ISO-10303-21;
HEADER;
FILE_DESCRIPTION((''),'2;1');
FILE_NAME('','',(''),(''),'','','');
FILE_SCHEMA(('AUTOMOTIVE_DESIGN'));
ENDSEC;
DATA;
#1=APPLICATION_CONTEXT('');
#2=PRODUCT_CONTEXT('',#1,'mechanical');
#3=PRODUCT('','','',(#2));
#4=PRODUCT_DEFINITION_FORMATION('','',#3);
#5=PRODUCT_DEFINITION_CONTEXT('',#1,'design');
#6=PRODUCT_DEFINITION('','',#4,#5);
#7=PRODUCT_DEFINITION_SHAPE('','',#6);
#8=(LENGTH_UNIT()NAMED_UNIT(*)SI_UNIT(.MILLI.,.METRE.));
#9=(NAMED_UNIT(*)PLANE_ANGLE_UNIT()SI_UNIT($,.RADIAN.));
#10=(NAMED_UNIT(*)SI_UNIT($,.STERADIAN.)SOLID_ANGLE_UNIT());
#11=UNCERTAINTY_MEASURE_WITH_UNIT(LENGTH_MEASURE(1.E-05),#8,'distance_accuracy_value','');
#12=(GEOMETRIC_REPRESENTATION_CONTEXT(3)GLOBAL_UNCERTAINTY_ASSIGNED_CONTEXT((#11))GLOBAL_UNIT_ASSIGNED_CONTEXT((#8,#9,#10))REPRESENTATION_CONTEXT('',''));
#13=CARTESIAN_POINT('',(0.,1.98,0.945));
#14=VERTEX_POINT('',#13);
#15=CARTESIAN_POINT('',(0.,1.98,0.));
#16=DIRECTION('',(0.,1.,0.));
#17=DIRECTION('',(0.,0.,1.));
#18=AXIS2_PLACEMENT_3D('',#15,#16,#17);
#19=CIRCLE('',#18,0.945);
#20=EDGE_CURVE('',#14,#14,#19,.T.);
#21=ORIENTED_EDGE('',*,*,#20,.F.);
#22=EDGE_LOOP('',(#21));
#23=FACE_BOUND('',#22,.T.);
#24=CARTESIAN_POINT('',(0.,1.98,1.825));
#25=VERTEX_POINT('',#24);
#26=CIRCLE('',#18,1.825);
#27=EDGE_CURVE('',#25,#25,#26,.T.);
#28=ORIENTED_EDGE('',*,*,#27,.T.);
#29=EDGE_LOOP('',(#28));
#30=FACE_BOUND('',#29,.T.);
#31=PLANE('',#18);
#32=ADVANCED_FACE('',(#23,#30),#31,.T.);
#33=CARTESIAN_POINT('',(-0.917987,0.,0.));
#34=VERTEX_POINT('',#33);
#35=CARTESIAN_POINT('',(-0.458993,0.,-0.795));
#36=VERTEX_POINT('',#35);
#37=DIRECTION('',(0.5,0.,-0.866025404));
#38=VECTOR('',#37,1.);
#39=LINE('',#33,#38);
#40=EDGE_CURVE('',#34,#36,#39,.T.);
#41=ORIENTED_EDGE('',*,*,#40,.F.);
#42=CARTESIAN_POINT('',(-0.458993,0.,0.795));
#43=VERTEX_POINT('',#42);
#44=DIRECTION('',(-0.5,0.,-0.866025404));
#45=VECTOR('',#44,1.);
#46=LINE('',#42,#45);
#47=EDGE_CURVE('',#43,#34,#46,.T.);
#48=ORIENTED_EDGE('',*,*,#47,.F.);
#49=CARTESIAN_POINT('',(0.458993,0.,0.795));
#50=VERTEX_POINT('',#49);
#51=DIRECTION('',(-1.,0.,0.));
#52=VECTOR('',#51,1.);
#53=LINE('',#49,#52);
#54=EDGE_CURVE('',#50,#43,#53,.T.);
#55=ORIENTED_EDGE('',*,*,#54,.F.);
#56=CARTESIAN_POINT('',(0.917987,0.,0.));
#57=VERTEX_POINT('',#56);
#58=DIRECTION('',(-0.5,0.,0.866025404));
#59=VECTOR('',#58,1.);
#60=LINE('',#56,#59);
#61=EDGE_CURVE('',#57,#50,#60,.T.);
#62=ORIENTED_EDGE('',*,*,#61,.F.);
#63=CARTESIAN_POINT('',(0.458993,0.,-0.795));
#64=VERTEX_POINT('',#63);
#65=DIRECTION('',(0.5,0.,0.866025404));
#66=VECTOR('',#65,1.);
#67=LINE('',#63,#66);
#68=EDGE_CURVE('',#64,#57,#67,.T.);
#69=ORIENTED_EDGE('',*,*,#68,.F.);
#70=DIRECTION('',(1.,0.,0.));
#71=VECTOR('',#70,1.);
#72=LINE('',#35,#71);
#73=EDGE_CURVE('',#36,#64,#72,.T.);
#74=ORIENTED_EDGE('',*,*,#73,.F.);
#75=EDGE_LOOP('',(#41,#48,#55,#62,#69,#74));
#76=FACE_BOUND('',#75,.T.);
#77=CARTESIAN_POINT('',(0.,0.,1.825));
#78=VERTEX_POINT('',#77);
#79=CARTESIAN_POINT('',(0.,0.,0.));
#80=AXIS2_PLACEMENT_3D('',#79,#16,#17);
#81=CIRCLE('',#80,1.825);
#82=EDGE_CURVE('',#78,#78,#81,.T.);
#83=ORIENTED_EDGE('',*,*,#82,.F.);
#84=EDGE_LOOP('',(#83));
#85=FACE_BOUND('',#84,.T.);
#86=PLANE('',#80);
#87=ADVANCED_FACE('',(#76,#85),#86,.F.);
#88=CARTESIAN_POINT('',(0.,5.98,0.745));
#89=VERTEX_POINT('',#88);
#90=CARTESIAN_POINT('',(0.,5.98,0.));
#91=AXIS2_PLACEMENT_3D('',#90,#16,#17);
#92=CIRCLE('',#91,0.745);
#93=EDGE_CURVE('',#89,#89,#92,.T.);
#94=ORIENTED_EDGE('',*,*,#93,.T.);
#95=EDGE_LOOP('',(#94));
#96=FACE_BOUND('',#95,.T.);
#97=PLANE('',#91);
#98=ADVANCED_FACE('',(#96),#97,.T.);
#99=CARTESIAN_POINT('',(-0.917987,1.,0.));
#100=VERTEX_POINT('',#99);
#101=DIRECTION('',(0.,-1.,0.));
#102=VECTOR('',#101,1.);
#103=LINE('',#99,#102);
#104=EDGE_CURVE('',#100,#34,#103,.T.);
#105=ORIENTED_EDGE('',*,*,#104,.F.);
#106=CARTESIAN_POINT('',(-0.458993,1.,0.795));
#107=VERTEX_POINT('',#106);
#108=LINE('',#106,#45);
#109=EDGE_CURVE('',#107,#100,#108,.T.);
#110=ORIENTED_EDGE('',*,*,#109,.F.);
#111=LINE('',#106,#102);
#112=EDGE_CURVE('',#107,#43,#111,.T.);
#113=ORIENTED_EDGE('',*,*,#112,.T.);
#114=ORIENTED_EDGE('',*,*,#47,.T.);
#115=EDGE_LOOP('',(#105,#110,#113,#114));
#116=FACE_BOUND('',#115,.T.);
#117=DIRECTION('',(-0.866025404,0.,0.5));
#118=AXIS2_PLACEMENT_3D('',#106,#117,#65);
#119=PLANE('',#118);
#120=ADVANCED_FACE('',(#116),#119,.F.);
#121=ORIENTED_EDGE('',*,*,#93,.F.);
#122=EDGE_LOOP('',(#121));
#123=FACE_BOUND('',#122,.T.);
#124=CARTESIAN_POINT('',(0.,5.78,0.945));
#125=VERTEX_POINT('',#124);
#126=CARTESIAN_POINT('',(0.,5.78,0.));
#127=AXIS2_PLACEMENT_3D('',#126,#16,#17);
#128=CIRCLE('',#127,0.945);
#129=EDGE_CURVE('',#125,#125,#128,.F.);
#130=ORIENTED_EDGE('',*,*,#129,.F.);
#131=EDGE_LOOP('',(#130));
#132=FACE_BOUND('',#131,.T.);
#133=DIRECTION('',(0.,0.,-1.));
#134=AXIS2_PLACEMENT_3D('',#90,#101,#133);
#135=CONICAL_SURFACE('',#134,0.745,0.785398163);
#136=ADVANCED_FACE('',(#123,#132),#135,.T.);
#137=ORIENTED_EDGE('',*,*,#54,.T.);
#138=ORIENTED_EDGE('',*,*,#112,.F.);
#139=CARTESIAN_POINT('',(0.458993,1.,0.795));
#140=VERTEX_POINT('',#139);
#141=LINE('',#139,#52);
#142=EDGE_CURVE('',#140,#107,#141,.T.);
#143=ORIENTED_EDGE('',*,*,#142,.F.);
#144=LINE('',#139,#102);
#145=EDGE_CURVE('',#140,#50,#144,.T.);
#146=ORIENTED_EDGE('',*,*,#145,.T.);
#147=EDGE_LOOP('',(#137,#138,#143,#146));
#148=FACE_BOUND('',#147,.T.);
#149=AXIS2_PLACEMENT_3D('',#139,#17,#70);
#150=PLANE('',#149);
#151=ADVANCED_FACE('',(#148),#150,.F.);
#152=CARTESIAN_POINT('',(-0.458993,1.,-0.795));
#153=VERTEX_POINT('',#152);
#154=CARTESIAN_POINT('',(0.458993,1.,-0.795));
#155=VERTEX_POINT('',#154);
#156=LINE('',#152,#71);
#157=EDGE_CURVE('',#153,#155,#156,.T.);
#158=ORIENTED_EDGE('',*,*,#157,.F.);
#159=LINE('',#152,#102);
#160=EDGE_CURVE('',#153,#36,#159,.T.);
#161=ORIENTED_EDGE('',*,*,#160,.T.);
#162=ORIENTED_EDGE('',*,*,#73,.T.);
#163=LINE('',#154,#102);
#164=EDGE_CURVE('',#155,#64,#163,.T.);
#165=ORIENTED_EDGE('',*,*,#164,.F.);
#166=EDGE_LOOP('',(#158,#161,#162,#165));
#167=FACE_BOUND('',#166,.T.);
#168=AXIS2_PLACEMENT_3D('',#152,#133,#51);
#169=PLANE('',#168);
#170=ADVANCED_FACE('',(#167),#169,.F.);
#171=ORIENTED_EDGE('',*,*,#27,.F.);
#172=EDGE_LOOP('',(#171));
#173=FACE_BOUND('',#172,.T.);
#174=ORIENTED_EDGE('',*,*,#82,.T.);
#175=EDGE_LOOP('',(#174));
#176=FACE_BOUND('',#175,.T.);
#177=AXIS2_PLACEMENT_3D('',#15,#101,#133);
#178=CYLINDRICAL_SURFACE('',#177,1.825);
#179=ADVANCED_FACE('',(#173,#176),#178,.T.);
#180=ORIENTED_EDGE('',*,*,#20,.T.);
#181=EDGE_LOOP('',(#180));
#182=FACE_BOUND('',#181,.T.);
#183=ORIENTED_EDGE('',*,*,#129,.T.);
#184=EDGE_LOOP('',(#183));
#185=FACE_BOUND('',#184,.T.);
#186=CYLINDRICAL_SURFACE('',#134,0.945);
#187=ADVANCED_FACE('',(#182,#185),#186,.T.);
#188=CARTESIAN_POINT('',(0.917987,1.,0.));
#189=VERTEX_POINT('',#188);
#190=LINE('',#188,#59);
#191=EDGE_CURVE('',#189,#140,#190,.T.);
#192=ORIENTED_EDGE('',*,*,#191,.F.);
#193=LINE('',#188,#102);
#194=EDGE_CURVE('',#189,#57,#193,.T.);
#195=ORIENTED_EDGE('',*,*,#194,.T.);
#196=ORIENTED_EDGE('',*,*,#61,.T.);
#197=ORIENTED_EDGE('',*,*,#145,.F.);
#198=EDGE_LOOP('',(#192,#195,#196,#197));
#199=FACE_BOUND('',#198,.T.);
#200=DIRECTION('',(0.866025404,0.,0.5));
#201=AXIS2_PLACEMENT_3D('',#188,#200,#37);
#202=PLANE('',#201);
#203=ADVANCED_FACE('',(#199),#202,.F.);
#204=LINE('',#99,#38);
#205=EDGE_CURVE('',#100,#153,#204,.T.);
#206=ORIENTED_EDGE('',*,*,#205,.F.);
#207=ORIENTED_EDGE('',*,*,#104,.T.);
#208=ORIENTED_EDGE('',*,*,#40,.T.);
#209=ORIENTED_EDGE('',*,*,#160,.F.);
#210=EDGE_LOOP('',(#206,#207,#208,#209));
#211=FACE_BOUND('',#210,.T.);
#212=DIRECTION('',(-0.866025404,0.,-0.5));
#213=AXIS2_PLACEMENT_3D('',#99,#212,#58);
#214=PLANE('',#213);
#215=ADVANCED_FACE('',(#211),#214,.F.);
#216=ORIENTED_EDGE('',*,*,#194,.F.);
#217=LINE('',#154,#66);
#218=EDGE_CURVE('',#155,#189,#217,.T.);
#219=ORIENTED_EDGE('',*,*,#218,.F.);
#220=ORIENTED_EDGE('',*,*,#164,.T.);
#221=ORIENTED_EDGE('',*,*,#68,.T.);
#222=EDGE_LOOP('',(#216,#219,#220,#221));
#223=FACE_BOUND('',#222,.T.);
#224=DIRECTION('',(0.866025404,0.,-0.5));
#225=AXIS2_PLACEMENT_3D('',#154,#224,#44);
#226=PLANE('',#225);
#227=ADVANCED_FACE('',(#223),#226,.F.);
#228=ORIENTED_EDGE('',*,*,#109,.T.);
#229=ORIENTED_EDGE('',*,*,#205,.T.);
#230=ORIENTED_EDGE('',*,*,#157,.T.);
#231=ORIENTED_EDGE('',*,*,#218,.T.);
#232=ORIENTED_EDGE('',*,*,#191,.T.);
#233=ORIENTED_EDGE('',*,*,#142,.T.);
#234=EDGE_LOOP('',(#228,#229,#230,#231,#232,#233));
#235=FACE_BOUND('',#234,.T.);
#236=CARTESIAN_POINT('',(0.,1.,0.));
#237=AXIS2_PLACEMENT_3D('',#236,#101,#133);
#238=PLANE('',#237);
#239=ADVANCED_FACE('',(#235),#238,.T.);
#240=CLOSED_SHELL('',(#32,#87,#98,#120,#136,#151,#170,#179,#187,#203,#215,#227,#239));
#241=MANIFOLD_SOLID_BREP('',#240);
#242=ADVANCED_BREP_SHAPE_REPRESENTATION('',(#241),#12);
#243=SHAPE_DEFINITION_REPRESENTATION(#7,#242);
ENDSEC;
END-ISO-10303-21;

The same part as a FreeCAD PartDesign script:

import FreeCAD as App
import Part
import Sketcher
Q = App.Units.Quantity


def edges_at(feature, points):
    """Names of the edges that pass closest to the given points."""
    edges = feature.Shape.Edges
    near = lambda p: min(range(len(edges)), key=lambda i: edges[i].distToShape(Part.Vertex(*p))[0])
    return sorted({f"Edge{near(p) + 1}" for p in points})

doc = App.newDocument("Part")
body = doc.addObject("PartDesign::Body", "Body")

sketch1 = doc.addObject("Sketcher::SketchObject", "Sketch")
body.addObject(sketch1)
sketch1.AttachmentSupport = (doc.XZ_Plane, [""])
sketch1.MapMode = "FlatFace"
sketch1.addGeometry(Part.Circle(App.Vector(0, 0, 0), App.Vector(0, 0, 1), 1.8), False)
sketch1.addConstraint(Sketcher.Constraint("Coincident", 0, 3, -1, 1))
sketch1.addConstraint(Sketcher.Constraint("Diameter", 0, 3.65))
pad1 = doc.addObject("PartDesign::Pad", "Pad")
body.addObject(pad1)
pad1.Profile = sketch1
pad1.Length = 1.98
pad1.Reversed = True

sketch2 = doc.addObject("Sketcher::SketchObject", "Sketch001")
body.addObject(sketch2)
sketch2.AttachmentSupport = (doc.XZ_Plane, [""])
sketch2.MapMode = "FlatFace"
sketch2.AttachmentOffset = App.Placement(App.Vector(0, 0, -1.98), App.Rotation())
sketch2.addGeometry(Part.Circle(App.Vector(0, 0, 0), App.Vector(0, 0, 1), 0.9), False)
sketch2.addConstraint(Sketcher.Constraint("Coincident", 0, 3, -1, 1))
sketch2.addConstraint(Sketcher.Constraint("Diameter", 0, 1.89))
pad2 = doc.addObject("PartDesign::Pad", "Pad001")
body.addObject(pad2)
pad2.Profile = sketch2
pad2.Length = 4
pad2.Reversed = True

sketch3 = doc.addObject("Sketcher::SketchObject", "Sketch002")
body.addObject(sketch3)
sketch3.AttachmentSupport = (doc.XZ_Plane, [""])
sketch3.MapMode = "FlatFace"
sketch3.addGeometry(Part.LineSegment(App.Vector(0.5, -0.8, 0), App.Vector(0.9, 0, 0)), False)
sketch3.addGeometry(Part.LineSegment(App.Vector(0.9, 0, 0), App.Vector(0.5, 0.8, 0)), False)
sketch3.addGeometry(Part.LineSegment(App.Vector(0.5, 0.8, 0), App.Vector(-0.5, 0.8, 0)), False)
sketch3.addGeometry(Part.LineSegment(App.Vector(-0.5, 0.8, 0), App.Vector(-0.9, 0, 0)), False)
sketch3.addGeometry(Part.LineSegment(App.Vector(-0.9, 0, 0), App.Vector(-0.5, -0.8, 0)), False)
sketch3.addGeometry(Part.LineSegment(App.Vector(-0.5, -0.8, 0), App.Vector(0.5, -0.8, 0)), False)
sketch3.addConstraint(Sketcher.Constraint("Coincident", 0, 2, 1, 1))
sketch3.addConstraint(Sketcher.Constraint("Coincident", 1, 2, 2, 1))
sketch3.addConstraint(Sketcher.Constraint("Coincident", 2, 2, 3, 1))
sketch3.addConstraint(Sketcher.Constraint("Coincident", 3, 2, 4, 1))
sketch3.addConstraint(Sketcher.Constraint("Coincident", 4, 2, 5, 1))
sketch3.addConstraint(Sketcher.Constraint("Coincident", 5, 2, 0, 1))
sketch3.addConstraint(Sketcher.Constraint("Horizontal", 2))
sketch3.addConstraint(Sketcher.Constraint("Horizontal", 5))
sketch3.addConstraint(Sketcher.Constraint("Symmetric", 0, 2, 3, 2, -1, 1))
sketch3.addConstraint(Sketcher.Constraint("Symmetric", 1, 2, 4, 2, -1, 1))
sketch3.addConstraint(Sketcher.Constraint("PointOnObject", 0, 2, -1))
sketch3.addConstraint(Sketcher.Constraint("Parallel", 0, 3))
sketch3.addConstraint(Sketcher.Constraint("Vertical", 2, 2, 4, 2))
sketch3.addConstraint(Sketcher.Constraint("Angle", 0, Q("60 deg")))
sketch3.addConstraint(Sketcher.Constraint("DistanceY", 4, 2, 2, 2, 1.59))
sketch3.addConstraint(Sketcher.Constraint("DistanceX", 2, 2, 2, 1, 0.917987))
pocket1 = doc.addObject("PartDesign::Pocket", "Pocket")
body.addObject(pocket1)
pocket1.Profile = sketch3
pocket1.Length = 1
doc.recompute()

chamfer = doc.addObject("PartDesign::Chamfer", "Chamfer")
body.addObject(chamfer)
chamfer.Base = (pocket1, edges_at(pocket1, [(-0.945, 5.98, 0)]))
chamfer.Size = 0.2

doc.recompute()
